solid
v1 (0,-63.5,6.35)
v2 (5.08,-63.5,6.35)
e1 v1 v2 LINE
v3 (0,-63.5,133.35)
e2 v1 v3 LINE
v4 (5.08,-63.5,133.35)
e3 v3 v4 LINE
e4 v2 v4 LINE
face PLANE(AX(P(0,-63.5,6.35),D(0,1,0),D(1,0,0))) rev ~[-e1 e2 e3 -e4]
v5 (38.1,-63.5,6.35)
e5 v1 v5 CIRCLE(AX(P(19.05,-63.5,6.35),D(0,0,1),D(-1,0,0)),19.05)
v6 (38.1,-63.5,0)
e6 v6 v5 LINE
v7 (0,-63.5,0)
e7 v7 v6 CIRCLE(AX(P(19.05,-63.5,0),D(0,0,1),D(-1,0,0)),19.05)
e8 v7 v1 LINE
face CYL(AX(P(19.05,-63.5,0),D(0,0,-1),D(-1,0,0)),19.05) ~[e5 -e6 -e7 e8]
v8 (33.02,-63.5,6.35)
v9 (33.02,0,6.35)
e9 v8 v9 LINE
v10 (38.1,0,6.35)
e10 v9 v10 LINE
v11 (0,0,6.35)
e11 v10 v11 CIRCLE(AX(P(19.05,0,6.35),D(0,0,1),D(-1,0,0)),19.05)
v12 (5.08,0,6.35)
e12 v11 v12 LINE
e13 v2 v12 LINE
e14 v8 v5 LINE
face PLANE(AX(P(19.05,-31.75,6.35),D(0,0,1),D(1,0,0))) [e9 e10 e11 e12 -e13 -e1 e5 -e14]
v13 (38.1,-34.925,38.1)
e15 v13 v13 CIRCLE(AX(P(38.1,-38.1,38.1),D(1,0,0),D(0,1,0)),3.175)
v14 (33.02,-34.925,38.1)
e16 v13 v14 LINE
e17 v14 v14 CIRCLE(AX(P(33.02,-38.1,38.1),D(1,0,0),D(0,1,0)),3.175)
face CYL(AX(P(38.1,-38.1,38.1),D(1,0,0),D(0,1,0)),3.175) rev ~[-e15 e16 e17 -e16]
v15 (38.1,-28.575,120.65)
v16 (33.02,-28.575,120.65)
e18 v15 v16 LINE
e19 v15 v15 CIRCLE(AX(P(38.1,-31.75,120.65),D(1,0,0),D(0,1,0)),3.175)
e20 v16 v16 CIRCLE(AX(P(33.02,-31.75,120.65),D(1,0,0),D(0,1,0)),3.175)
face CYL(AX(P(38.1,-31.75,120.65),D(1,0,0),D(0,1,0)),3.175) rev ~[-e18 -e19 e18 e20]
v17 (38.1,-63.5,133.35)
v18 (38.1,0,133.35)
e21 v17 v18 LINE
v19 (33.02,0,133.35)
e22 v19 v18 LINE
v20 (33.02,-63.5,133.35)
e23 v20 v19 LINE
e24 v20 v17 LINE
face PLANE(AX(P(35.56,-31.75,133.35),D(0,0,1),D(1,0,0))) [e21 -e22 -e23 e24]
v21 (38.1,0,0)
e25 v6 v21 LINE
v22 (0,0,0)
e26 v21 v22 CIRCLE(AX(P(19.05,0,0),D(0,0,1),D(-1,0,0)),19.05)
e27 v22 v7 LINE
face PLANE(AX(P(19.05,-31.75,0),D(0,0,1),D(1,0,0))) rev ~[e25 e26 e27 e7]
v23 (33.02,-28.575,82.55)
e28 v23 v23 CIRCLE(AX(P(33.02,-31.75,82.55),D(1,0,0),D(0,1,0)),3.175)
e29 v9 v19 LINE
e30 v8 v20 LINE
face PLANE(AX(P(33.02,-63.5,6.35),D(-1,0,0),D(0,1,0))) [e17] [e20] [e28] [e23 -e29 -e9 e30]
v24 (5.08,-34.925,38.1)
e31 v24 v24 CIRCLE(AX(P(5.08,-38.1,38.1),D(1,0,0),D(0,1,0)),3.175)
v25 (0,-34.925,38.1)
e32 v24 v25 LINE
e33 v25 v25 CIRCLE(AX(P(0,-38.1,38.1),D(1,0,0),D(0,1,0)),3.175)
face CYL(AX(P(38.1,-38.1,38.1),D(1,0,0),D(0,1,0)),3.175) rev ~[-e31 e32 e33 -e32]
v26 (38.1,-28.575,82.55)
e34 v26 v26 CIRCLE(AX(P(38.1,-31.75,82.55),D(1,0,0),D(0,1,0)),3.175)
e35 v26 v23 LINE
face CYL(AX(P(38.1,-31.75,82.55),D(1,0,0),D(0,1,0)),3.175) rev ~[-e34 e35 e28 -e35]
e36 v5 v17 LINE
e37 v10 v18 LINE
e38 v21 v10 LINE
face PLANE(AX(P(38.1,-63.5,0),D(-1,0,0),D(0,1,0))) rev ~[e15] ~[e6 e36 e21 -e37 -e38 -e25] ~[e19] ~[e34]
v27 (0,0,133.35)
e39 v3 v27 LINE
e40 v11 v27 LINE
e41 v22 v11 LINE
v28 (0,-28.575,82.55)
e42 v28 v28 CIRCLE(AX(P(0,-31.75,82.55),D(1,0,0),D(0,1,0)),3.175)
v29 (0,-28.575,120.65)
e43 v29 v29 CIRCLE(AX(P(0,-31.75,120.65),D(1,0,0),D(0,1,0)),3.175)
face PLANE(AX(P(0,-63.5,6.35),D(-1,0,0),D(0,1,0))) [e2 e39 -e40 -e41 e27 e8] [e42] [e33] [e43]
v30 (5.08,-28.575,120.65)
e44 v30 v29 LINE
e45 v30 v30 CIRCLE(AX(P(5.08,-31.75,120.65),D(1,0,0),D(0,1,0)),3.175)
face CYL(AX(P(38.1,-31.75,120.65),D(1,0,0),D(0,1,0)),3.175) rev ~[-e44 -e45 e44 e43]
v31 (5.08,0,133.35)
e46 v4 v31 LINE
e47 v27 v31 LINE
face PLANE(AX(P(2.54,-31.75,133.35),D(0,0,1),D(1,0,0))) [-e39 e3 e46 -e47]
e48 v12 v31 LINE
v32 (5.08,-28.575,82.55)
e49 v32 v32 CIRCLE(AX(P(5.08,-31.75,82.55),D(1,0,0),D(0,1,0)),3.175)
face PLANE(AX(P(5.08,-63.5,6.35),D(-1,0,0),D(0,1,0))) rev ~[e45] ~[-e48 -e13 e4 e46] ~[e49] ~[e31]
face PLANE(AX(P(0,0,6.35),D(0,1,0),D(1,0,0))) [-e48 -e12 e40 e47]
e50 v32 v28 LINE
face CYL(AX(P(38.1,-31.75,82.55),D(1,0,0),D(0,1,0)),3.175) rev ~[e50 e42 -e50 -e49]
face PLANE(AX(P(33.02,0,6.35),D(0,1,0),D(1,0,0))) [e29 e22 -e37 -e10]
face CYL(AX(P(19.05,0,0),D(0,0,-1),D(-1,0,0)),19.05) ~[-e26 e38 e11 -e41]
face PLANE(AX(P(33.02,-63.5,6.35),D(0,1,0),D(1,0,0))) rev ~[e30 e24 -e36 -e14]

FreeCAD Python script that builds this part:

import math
import FreeCAD as App
import Part
import Sketcher

V = App.Vector
Q = App.Units.Quantity


def add_polygon(sketch, points):
    """Adds a closed chain of lines whose ends are joined by coincident constraints."""
    first, n = sketch.GeometryCount, len(points)
    for a, b in zip(points, points[1:] + points[:1]):
        sketch.addGeometry(Part.LineSegment(App.Vector(*a, 0), App.Vector(*b, 0)), False)
    for i in range(n):
        sketch.addConstraint(Sketcher.Constraint("Coincident", first + i, 2, first + (i + 1) % n, 1))

doc = App.newDocument("Part")
body = doc.addObject("PartDesign::Body", "Body")

sketch1 = doc.addObject("Sketcher::SketchObject", "Sketch")
body.addObject(sketch1)
sketch1.AttachmentSupport = (doc.XY_Plane, [""])
sketch1.MapMode = "FlatFace"
sketch1.addGeometry(Part.LineSegment(V(0, 0, 0), V(0, -63.5, 0)), False)
sketch1.addGeometry(Part.ArcOfCircle(Part.Circle(V(19.05, -63.5, 0), V(0, 0, 1), 19.05), math.radians(180), math.radians(360)), False)
sketch1.addGeometry(Part.LineSegment(V(38.1, -63.5, 0), V(38.1, 0, 0)), False)
sketch1.addGeometry(Part.ArcOfCircle(Part.Circle(V(19.05, 0, 0), V(0, 0, 1), 19.05), math.radians(0), math.radians(180)), False)
sketch1.addConstraint(Sketcher.Constraint("Tangent", 0, 2, 1, 1))
sketch1.addConstraint(Sketcher.Constraint("Tangent", 1, 2, 2, 1))
sketch1.addConstraint(Sketcher.Constraint("Tangent", 2, 2, 3, 1))
sketch1.addConstraint(Sketcher.Constraint("Tangent", 3, 2, 0, 1))
sketch1.addConstraint(Sketcher.Constraint("Vertical", 0))
sketch1.addConstraint(Sketcher.Constraint("Vertical", 2))
sketch1.addConstraint(Sketcher.Constraint("Coincident", 3, 2, -1, 1))
sketch1.addConstraint(Sketcher.Constraint("Radius", 1, Q("0.75 in")))
sketch1.addConstraint(Sketcher.Constraint("DistanceY", 0, 2, 0, 1, Q("2.5 in")))
pad1 = doc.addObject("PartDesign::Pad", "Pad")
body.addObject(pad1)
pad1.Profile = sketch1
pad1.Length = Q("0.25 in")

sketch2 = doc.addObject("Sketcher::SketchObject", "Sketch001")
body.addObject(sketch2)
sketch2.AttachmentSupport = (doc.XY_Plane, [""])
sketch2.MapMode = "FlatFace"
sketch2.AttachmentOffset = App.Placement(V(0, 0, 0.25 * 25.4), App.Rotation())
add_polygon(sketch2, [(0, 0), (0, -63.5), (5.08, -63.5), (5.08, 0)])
add_polygon(sketch2, [(33.02, 0), (33.02, -63.5), (38.1, -63.5), (38.1, 0)])
sketch2.addConstraint(Sketcher.Constraint("Vertical", 0))
sketch2.addConstraint(Sketcher.Constraint("Horizontal", 1))
sketch2.addConstraint(Sketcher.Constraint("Vertical", 2))
sketch2.addConstraint(Sketcher.Constraint("Horizontal", 3))
sketch2.addConstraint(Sketcher.Constraint("Vertical", 4))
sketch2.addConstraint(Sketcher.Constraint("Horizontal", 5))
sketch2.addConstraint(Sketcher.Constraint("Vertical", 6))
sketch2.addConstraint(Sketcher.Constraint("Horizontal", 7))
sketch2.addConstraint(Sketcher.Constraint("Coincident", 3, 2, -1, 1))
sketch2.addConstraint(Sketcher.Constraint("PointOnObject", 6, 2, -1))
sketch2.addConstraint(Sketcher.Constraint("Horizontal", 1, 2, 4, 2))
sketch2.addConstraint(Sketcher.Constraint("Equal", 3, 5))
sketch2.addConstraint(Sketcher.Constraint("DistanceX", 1, 1, 1, 2, Q("0.2 in")))
sketch2.addConstraint(Sketcher.Constraint("DistanceY", 0, 2, 0, 1, Q("2.5 in")))
sketch2.addConstraint(Sketcher.Constraint("DistanceX", -1, 1, 4, 2, Q("1.3 in")))
pad2 = doc.addObject("PartDesign::Pad", "Pad001")
body.addObject(pad2)
pad2.Profile = sketch2
pad2.Length = Q("5 in")

sketch3 = doc.addObject("Sketcher::SketchObject", "Sketch002")
body.addObject(sketch3)
sketch3.AttachmentSupport = (doc.YZ_Plane, [""])
sketch3.MapMode = "FlatFace"
sketch3.AttachmentOffset = App.Placement(V(0, 0, 1.5 * 25.4), App.Rotation())
sketch3.addGeometry(Part.Circle(V(-31.75, 120.65, 0), V(0, 0, 1), 3.175), False)
sketch3.addGeometry(Part.Circle(V(-31.75, 82.55, 0), V(0, 0, 1), 3.175), False)
sketch3.addGeometry(Part.Circle(V(-38.1, 38.1, 0), V(0, 0, 1), 3.175), False)
sketch3.addConstraint(Sketcher.Constraint("Equal", 0, 1))
sketch3.addConstraint(Sketcher.Constraint("Equal", 1, 2))
sketch3.addConstraint(Sketcher.Constraint("Vertical", 0, 3, 1, 3))
sketch3.addConstraint(Sketcher.Constraint("Diameter", 0, Q("0.25 in")))
sketch3.addConstraint(Sketcher.Constraint("DistanceX", 2, 3, -1, 1, Q("1.5 in")))
sketch3.addConstraint(Sketcher.Constraint("DistanceY", -1, 1, 2, 3, Q("1.5 in")))
sketch3.addConstraint(Sketcher.Constraint("DistanceY", 1, 3, 0, 3, Q("1.5 in")))
sketch3.addConstraint(Sketcher.Constraint("DistanceX", 0, 3, -1, 1, Q("1.25 in")))
sketch3.addConstraint(Sketcher.Constraint("DistanceY", -1, 1, 0, 3, Q("4.75 in")))
pocket1 = doc.addObject("PartDesign::Pocket", "Pocket")
body.addObject(pocket1)
pocket1.Profile = sketch3
pocket1.Length = Q("2 in")

doc.recompute()
